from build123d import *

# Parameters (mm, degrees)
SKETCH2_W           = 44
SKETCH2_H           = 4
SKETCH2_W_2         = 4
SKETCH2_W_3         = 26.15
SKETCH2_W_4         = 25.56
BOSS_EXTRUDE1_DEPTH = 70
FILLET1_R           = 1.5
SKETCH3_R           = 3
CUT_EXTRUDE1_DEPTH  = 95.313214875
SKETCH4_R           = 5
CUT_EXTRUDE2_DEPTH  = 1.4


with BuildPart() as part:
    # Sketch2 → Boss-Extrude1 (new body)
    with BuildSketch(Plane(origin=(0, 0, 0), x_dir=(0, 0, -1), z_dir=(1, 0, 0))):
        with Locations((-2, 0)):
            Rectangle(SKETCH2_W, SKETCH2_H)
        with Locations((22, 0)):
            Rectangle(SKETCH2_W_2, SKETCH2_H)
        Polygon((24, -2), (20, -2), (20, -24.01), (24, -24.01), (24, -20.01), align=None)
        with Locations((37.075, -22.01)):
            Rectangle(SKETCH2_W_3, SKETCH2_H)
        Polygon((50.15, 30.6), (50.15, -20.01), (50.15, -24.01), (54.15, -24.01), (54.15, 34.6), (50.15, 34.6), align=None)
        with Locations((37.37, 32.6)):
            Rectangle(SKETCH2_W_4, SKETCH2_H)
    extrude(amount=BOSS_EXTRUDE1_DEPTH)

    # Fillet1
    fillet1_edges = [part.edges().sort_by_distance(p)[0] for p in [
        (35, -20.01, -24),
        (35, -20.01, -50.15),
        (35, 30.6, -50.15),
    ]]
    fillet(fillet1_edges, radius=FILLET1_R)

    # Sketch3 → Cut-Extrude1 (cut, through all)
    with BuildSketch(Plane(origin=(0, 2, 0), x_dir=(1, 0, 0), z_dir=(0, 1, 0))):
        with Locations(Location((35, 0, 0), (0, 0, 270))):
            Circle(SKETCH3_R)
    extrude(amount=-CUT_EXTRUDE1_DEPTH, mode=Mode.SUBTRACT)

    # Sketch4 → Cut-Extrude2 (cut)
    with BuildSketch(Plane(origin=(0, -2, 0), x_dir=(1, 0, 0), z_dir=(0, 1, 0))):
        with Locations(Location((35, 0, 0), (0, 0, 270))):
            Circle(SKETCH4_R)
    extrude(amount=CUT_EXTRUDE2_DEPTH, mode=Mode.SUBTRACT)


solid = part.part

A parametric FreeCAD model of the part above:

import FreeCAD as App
import Part
import Sketcher
Q = App.Units.Quantity


def edges_at(feature, points):
    """Names of the edges that pass closest to the given points."""
    edges = feature.Shape.Edges
    near = lambda p: min(range(len(edges)), key=lambda i: edges[i].distToShape(Part.Vertex(*p))[0])
    return sorted({f"Edge{near(p) + 1}" for p in points})


def add_polygon(sketch, points):
    """Adds a closed chain of lines whose ends are joined by coincident constraints."""
    first, n = sketch.GeometryCount, len(points)
    for a, b in zip(points, points[1:] + points[:1]):
        sketch.addGeometry(Part.LineSegment(App.Vector(*a, 0), App.Vector(*b, 0)), False)
    for i in range(n):
        sketch.addConstraint(Sketcher.Constraint("Coincident", first + i, 2, first + (i + 1) % n, 1))

doc = App.newDocument("Part")
body = doc.addObject("PartDesign::Body", "Body")

# Sketch on YZ plane
sketch1 = body.newObject("Sketcher::SketchObject", "Sketch")
sketch1.AttachmentSupport = (doc.getObject("YZ_Plane"), [""])
sketch1.MapMode = "FlatFace"
add_polygon(sketch1, [(2, 24), (-2, 24), (-2, -20), (-24, -20), (-24, -54.1), (34.6, -54.1), (34.6, -24.6), (30.6, -24.6), (30.6, -50.1), (-20, -50.1), (-20, -24), (2, -24)])  # lines 0-11
sketch1.addConstraint(Sketcher.Constraint("Horizontal", 0))
sketch1.addConstraint(Sketcher.Constraint("Vertical", 1))
sketch1.addConstraint(Sketcher.Constraint("Horizontal", 2))
sketch1.addConstraint(Sketcher.Constraint("Vertical", 3))
sketch1.addConstraint(Sketcher.Constraint("Horizontal", 4))
sketch1.addConstraint(Sketcher.Constraint("Vertical", 5))
sketch1.addConstraint(Sketcher.Constraint("Horizontal", 6))
sketch1.addConstraint(Sketcher.Constraint("Vertical", 7))
sketch1.addConstraint(Sketcher.Constraint("Horizontal", 8))
sketch1.addConstraint(Sketcher.Constraint("Vertical", 9))
sketch1.addConstraint(Sketcher.Constraint("Horizontal", 10))
sketch1.addConstraint(Sketcher.Constraint("Vertical", 11))
sketch1.addConstraint(Sketcher.Constraint("Symmetric", 0, 2, 10, 2, -1, 1))
sketch1.addConstraint(Sketcher.Constraint("Equal", 0, 6))
sketch1.addConstraint(Sketcher.Constraint("Equal", 2, 10))
sketch1.addConstraint(Sketcher.Constraint("DistanceX", 0, 2, 0, 1, Q("4 mm")))
sketch1.addConstraint(Sketcher.Constraint("DistanceY", 1, 2, 1, 1, Q("44 mm")))
sketch1.addConstraint(Sketcher.Constraint("DistanceY", 11, 1, 11, 2, Q("48 mm")))
sketch1.addConstraint(Sketcher.Constraint("DistanceY", 4, 2, 7, 2, Q("4 mm")))
sketch1.addConstraint(Sketcher.Constraint("DistanceX", 2, 2, 2, 1, Q("22.01 mm")))
sketch1.addConstraint(Sketcher.Constraint("DistanceX", 4, 1, 4, 2, Q("58.61 mm")))
sketch1.addConstraint(Sketcher.Constraint("DistanceY", 3, 2, 3, 1, Q("34.15 mm")))
sketch1.addConstraint(Sketcher.Constraint("DistanceY", 5, 1, 5, 2, Q("29.56 mm")))
pad1 = body.newObject("PartDesign::Pad", "Pad")
pad1.Profile = sketch1
pad1.Length = 70
doc.recompute()

fillet = body.newObject("PartDesign::Fillet", "Fillet")
fillet.Base = (pad1, edges_at(pad1, [(35, -20.01, -24), (35, -20.01, -50.15), (35, 30.6, -50.15)]))
fillet.Radius = 1.5

# Sketch on XZ plane
sketch2 = body.newObject("Sketcher::SketchObject", "Sketch001")
sketch2.AttachmentSupport = (doc.getObject("XZ_Plane"), [""])
sketch2.MapMode = "FlatFace"
sketch2.AttachmentOffset = App.Placement(App.Vector(0, 0, -2), App.Rotation())
sketch2.addGeometry(Part.Circle(App.Vector(35, 0, 0), App.Vector(0, 0, 1), 3), False)
sketch2.addConstraint(Sketcher.Constraint("PointOnObject", 0, 3, -1))
sketch2.addConstraint(Sketcher.Constraint("Diameter", 0, Q("6 mm")))
sketch2.addConstraint(Sketcher.Constraint("DistanceX", -1, 1, 0, 3, Q("35 mm")))
pocket1 = body.newObject("PartDesign::Pocket", "Pocket")
pocket1.Profile = sketch2
pocket1.Type = "ThroughAll"
pocket1.Reversed = True

# Sketch on XZ plane
sketch3 = body.newObject("Sketcher::SketchObject", "Sketch002")
sketch3.AttachmentSupport = (doc.getObject("XZ_Plane"), [""])
sketch3.MapMode = "FlatFace"
sketch3.AttachmentOffset = App.Placement(App.Vector(0, 0, 2), App.Rotation())
sketch3.addGeometry(Part.Circle(App.Vector(35, 0, 0), App.Vector(0, 0, 1), 5), False)
sketch3.addConstraint(Sketcher.Constraint("PointOnObject", 0, 3, -1))
sketch3.addConstraint(Sketcher.Constraint("Diameter", 0, Q("10 mm")))
sketch3.addConstraint(Sketcher.Constraint("DistanceX", -1, 1, 0, 3, Q("35 mm")))
pocket2 = body.newObject("PartDesign::Pocket", "Pocket001")
pocket2.Profile = sketch3
pocket2.Length = 1.4

doc.recompute()
